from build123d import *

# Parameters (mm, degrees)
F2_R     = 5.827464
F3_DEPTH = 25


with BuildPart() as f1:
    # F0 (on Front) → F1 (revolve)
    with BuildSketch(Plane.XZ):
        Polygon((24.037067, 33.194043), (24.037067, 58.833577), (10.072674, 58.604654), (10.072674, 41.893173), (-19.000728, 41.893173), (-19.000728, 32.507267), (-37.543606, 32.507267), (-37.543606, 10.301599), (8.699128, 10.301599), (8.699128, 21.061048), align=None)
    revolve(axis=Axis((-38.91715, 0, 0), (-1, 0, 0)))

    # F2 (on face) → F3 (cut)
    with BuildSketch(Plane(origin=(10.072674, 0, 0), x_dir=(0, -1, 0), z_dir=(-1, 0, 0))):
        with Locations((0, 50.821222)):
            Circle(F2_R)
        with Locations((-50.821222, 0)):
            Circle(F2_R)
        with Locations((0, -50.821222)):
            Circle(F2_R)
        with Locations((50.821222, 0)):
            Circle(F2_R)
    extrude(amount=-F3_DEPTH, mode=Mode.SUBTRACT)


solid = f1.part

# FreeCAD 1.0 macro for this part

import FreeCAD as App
import Part
import Sketcher
from FreeCAD import Vector
Q = App.Units.Quantity

doc = App.newDocument("Part")
body = doc.addObject("PartDesign::Body", "Body")

sketch1 = doc.addObject("Sketcher::SketchObject", "Sketch")
body.addObject(sketch1)
sketch1.AttachmentSupport = (doc.XZ_Plane, [""])
sketch1.MapMode = "FlatFace"
sketch1.addGeometry([
    Part.LineSegment(Vector(24, 33, 0), Vector(24, 59, 0)),
    Part.LineSegment(Vector(24, 59, 0), Vector(10, 59, 0)),
    Part.LineSegment(Vector(10, 59, 0), Vector(10, 42, 0)),
    Part.LineSegment(Vector(10, 42, 0), Vector(-19, 42, 0)),
    Part.LineSegment(Vector(-19, 42, 0), Vector(-19, 33, 0)),
    Part.LineSegment(Vector(-19, 33, 0), Vector(-38, 33, 0)),
    Part.LineSegment(Vector(-38, 33, 0), Vector(-38, 10, 0)),
    Part.LineSegment(Vector(-38, 10, 0), Vector(9, 10, 0)),
    Part.LineSegment(Vector(9, 10, 0), Vector(9, 21, 0)),
    Part.LineSegment(Vector(9, 21, 0), Vector(24, 33, 0)),
], False)
sketch1.addConstraint([
    Sketcher.Constraint("Coincident", 0, 2, 1, 1),
    Sketcher.Constraint("Coincident", 1, 2, 2, 1),
    Sketcher.Constraint("Coincident", 2, 2, 3, 1),
    Sketcher.Constraint("Coincident", 3, 2, 4, 1),
    Sketcher.Constraint("Coincident", 4, 2, 5, 1),
    Sketcher.Constraint("Coincident", 5, 2, 6, 1),
    Sketcher.Constraint("Coincident", 6, 2, 7, 1),
    Sketcher.Constraint("Coincident", 7, 2, 8, 1),
    Sketcher.Constraint("Coincident", 8, 2, 9, 1),
    Sketcher.Constraint("Coincident", 9, 2, 0, 1),
    Sketcher.Constraint("Vertical", 0),
    Sketcher.Constraint("Vertical", 2),
    Sketcher.Constraint("Horizontal", 3),
    Sketcher.Constraint("Vertical", 4),
    Sketcher.Constraint("Horizontal", 5),
    Sketcher.Constraint("Vertical", 6),
    Sketcher.Constraint("Horizontal", 7),
    Sketcher.Constraint("Vertical", 8),
    Sketcher.Constraint("DistanceX", 3, 2, 3, 1, Q("29.073402 mm")),
    Sketcher.Constraint("DistanceY", 2, 2, 2, 1, Q("16.711481 mm")),
    Sketcher.Constraint("DistanceY", 8, 1, 8, 2, Q("10.759449 mm")),
    Sketcher.Constraint("DistanceY", -1, 1, 6, 2, Q("10.301599 mm")),
    Sketcher.Constraint("Distance", 1, Q("13.966269 mm")),
    Sketcher.Constraint("DistanceX", 5, 2, 5, 1, Q("18.542878 mm")),
    Sketcher.Constraint("DistanceX", 7, 1, 7, 2, Q("46.242734 mm")),
    Sketcher.Constraint("DistanceY", 0, 1, 0, 2, Q("25.639534 mm")),
    Sketcher.Constraint("DistanceY", 4, 2, 4, 1, Q("9.385906 mm")),
    Sketcher.Constraint("DistanceY", 6, 2, 6, 1, Q("22.205668 mm")),
    Sketcher.Constraint("DistanceY", 4, 2, 0, 2, Q("26.32631 mm")),
    Sketcher.Constraint("DistanceX", -1, 1, 0, 2, Q("24.037067 mm")),
])
revolution = doc.addObject("PartDesign::Revolution", "Revolution")
body.addObject(revolution)
revolution.Profile = sketch1
revolution.ReferenceAxis = (sketch1, ["H_Axis"])
revolution.Angle = 360

sketch2 = doc.addObject("Sketcher::SketchObject", "Sketch001")
body.addObject(sketch2)
sketch2.AttachmentSupport = (doc.YZ_Plane, [""])
sketch2.MapMode = "FlatFace"
sketch2.AttachmentOffset = App.Placement(Vector(0, 0, 10.072674), App.Rotation())
sketch2.addGeometry([
    Part.Circle(Vector(0, 51, 0), Vector(0, 0, 1), 6),
    Part.Circle(Vector(51, 0, 0), Vector(0, 0, 1), 6),
    Part.Circle(Vector(0, -51, 0), Vector(0, 0, 1), 6),
    Part.Circle(Vector(-51, 0, 0), Vector(0, 0, 1), 6),
], False)
sketch2.addConstraint([
    Sketcher.Constraint("Equal", 0, 1),
    Sketcher.Constraint("Equal", 1, 2),
    Sketcher.Constraint("Equal", 2, 3),
    Sketcher.Constraint("Symmetric", 0, 3, 2, 3, -1, 1),
    Sketcher.Constraint("Symmetric", 1, 3, 3, 3, -1, 1),
    Sketcher.Constraint("PointOnObject", 0, 3, -2),
    Sketcher.Constraint("PointOnObject", 1, 3, -1),
    Sketcher.Constraint("Diameter", 0, Q("11.654928 mm")),
    Sketcher.Constraint("DistanceY", -1, 1, 0, 3, Q("50.821222 mm")),
    Sketcher.Constraint("DistanceX", -1, 1, 1, 3, Q("50.821222 mm")),
])
pocket1 = doc.addObject("PartDesign::Pocket", "Pocket")
body.addObject(pocket1)
pocket1.Profile = sketch2
pocket1.Length = 25
pocket1.Reversed = True

doc.recompute()
